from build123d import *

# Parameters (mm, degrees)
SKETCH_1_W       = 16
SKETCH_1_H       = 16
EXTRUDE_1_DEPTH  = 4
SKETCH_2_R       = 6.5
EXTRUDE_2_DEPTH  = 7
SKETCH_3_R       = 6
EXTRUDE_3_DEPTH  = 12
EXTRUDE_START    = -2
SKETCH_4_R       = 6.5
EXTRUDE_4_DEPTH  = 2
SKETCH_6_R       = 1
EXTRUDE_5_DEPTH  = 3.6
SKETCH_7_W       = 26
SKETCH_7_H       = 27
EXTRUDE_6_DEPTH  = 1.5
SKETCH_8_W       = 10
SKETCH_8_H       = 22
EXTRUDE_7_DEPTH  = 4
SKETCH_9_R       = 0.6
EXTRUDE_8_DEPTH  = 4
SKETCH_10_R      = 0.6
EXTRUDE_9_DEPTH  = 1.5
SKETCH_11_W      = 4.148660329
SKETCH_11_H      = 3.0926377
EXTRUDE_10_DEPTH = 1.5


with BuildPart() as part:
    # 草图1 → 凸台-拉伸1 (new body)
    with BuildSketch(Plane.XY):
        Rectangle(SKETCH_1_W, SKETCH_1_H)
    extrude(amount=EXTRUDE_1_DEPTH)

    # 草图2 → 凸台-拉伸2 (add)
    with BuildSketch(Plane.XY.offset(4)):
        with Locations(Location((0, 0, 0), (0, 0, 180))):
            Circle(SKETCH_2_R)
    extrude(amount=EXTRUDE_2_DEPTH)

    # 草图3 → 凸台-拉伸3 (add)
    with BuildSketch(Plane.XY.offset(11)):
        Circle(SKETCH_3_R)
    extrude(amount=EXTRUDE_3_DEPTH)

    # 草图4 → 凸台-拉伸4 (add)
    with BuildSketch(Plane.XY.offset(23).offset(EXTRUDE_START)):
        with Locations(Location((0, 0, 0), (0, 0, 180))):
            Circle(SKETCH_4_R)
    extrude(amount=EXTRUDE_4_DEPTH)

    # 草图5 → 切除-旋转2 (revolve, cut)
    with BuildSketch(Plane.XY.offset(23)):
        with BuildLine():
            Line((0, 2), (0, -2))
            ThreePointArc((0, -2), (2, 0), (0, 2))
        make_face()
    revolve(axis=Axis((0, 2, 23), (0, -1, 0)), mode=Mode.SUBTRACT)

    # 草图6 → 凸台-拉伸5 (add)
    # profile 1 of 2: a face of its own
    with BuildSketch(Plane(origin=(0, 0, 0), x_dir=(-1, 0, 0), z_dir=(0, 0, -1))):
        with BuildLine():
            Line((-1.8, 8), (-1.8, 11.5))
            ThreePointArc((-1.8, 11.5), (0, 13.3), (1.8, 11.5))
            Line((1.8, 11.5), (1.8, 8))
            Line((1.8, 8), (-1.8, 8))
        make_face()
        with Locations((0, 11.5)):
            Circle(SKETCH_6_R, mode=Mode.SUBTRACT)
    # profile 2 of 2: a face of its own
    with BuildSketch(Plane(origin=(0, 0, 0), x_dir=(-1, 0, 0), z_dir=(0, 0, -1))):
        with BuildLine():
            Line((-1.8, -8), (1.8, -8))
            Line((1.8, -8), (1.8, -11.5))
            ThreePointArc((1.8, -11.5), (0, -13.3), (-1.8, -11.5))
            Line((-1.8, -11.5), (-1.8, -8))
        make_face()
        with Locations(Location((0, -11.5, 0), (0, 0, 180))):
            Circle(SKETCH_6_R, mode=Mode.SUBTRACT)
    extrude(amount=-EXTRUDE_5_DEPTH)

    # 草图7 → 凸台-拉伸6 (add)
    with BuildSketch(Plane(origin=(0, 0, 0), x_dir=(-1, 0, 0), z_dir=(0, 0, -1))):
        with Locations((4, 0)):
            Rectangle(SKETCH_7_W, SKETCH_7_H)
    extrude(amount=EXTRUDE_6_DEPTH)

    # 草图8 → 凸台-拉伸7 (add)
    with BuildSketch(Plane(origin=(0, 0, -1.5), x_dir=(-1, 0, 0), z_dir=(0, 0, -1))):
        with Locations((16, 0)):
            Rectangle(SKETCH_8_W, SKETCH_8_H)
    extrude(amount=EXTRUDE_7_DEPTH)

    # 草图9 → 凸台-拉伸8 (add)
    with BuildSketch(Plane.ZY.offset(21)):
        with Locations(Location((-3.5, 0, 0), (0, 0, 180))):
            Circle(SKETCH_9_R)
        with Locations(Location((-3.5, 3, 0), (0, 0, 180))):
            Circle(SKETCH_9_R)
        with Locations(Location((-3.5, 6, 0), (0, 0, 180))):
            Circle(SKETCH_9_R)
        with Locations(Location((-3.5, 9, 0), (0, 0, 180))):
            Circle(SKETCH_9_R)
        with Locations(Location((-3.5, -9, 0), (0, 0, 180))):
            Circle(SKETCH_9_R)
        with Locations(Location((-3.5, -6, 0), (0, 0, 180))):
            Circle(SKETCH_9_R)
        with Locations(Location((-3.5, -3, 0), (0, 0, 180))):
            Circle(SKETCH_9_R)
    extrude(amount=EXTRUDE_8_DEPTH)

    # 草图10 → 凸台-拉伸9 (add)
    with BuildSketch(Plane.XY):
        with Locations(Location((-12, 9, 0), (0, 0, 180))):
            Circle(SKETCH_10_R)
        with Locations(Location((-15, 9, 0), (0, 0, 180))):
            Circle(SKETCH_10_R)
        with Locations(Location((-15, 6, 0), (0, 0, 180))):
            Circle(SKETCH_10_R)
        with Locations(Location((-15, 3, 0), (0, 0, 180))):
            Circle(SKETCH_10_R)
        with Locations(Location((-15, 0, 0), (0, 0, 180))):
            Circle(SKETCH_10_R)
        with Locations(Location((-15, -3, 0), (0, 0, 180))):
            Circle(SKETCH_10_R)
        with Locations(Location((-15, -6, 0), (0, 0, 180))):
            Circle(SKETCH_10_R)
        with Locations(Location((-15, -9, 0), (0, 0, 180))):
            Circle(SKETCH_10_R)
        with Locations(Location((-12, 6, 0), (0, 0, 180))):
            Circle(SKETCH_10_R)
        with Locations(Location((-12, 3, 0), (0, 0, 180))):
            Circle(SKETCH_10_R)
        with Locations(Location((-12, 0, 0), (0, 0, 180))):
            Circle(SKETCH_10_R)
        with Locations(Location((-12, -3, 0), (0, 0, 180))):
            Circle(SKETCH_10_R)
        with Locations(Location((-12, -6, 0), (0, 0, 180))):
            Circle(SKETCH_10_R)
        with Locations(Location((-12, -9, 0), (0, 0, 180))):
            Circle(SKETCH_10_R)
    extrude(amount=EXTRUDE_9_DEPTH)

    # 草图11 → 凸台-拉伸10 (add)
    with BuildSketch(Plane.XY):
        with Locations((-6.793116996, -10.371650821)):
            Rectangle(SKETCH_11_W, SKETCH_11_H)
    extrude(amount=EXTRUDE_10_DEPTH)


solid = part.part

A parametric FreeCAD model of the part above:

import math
import FreeCAD as App
import Part
import Sketcher

V = App.Vector


def add_polygon(sketch, points):
    """Adds a closed chain of lines whose ends are joined by coincident constraints."""
    first, n = sketch.GeometryCount, len(points)
    for a, b in zip(points, points[1:] + points[:1]):
        sketch.addGeometry(Part.LineSegment(App.Vector(*a, 0), App.Vector(*b, 0)), False)
    for i in range(n):
        sketch.addConstraint(Sketcher.Constraint("Coincident", first + i, 2, first + (i + 1) % n, 1))

doc = App.newDocument("Part")
body = doc.addObject("PartDesign::Body", "Body")

sketch1 = body.newObject("Sketcher::SketchObject", "Sketch")
sketch1.AttachmentSupport = (doc.getObject("XY_Plane"), [""])
sketch1.MapMode = "FlatFace"
add_polygon(sketch1, [(-8, 8), (-8, -8), (8, -8), (8, 8)])
sketch1.addConstraint([
    Sketcher.Constraint("Vertical", 0),
    Sketcher.Constraint("Horizontal", 1),
    Sketcher.Constraint("Vertical", 2),
    Sketcher.Constraint("Horizontal", 3),
    Sketcher.Constraint("Symmetric", 0, 2, 2, 2, -1, 1),
    Sketcher.Constraint("Equal", 3, 0),
    Sketcher.Constraint("DistanceX", 1, 1, 1, 2, 16.0),
])
pad1 = body.newObject("PartDesign::Pad", "Pad")
pad1.Profile = sketch1
pad1.Length = 4

sketch2 = body.newObject("Sketcher::SketchObject", "Sketch001")
sketch2.AttachmentSupport = (doc.getObject("XY_Plane"), [""])
sketch2.MapMode = "FlatFace"
sketch2.AttachmentOffset = App.Placement(V(0, 0, 4), App.Rotation())
sketch2.addGeometry(Part.Circle(V(0, 0, 0), V(0, 0, 1), 6.5), False)
sketch2.addConstraint([
    Sketcher.Constraint("Coincident", 0, 3, -1, 1),
    Sketcher.Constraint("Diameter", 0, 13.0),
])
pad2 = body.newObject("PartDesign::Pad", "Pad001")
pad2.Profile = sketch2
pad2.Length = 7

sketch3 = body.newObject("Sketcher::SketchObject", "Sketch002")
sketch3.AttachmentSupport = (doc.getObject("XY_Plane"), [""])
sketch3.MapMode = "FlatFace"
sketch3.AttachmentOffset = App.Placement(V(0, 0, 11), App.Rotation())
sketch3.addGeometry(Part.Circle(V(0, 0, 0), V(0, 0, 1), 6), False)
sketch3.addConstraint([
    Sketcher.Constraint("Coincident", 0, 3, -1, 1),
    Sketcher.Constraint("Diameter", 0, 12.0),
])
pad3 = body.newObject("PartDesign::Pad", "Pad002")
pad3.Profile = sketch3
pad3.Length = 12

sketch4 = body.newObject("Sketcher::SketchObject", "Sketch003")
sketch4.AttachmentSupport = (doc.getObject("XY_Plane"), [""])
sketch4.MapMode = "FlatFace"
sketch4.AttachmentOffset = App.Placement(V(0, 0, 21), App.Rotation())
sketch4.addGeometry(Part.Circle(V(0, 0, 0), V(0, 0, 1), 6.5), False)
sketch4.addConstraint([
    Sketcher.Constraint("Coincident", 0, 3, -1, 1),
    Sketcher.Constraint("Diameter", 0, 13.0),
])
pad4 = body.newObject("PartDesign::Pad", "Pad003")
pad4.Profile = sketch4
pad4.Length = 2

sketch5 = body.newObject("Sketcher::SketchObject", "Sketch004")
sketch5.AttachmentSupport = (doc.getObject("XY_Plane"), [""])
sketch5.MapMode = "FlatFace"
sketch5.AttachmentOffset = App.Placement(V(0, 0, 23), App.Rotation())
sketch5.addGeometry([
    Part.LineSegment(V(0, 2, 0), V(0, -2, 0)),
    Part.ArcOfCircle(Part.Circle(V(0, 0, 0), V(0, 0, 1), 2), math.radians(-90), math.radians(90)),
], False)
sketch5.addConstraint([
    Sketcher.Constraint("Coincident", 0, 1, 1, 2),
    Sketcher.Constraint("Coincident", 1, 1, 0, 2),
    Sketcher.Constraint("Vertical", 0),
    Sketcher.Constraint("Coincident", 1, 3, -1, 1),
    Sketcher.Constraint("PointOnObject", 0, 1, -2),
    Sketcher.Constraint("Radius", 1, 2.0),
])
groove = body.newObject("PartDesign::Groove", "Groove")
groove.Profile = sketch5
groove.ReferenceAxis = (sketch5, ["V_Axis"])
groove.Angle = 360

sketch6 = body.newObject("Sketcher::SketchObject", "Sketch005")
sketch6.AttachmentSupport = (doc.getObject("XY_Plane"), [""])
sketch6.MapMode = "FlatFace"
sketch6.addGeometry([
    Part.LineSegment(V(1.8, 11.5, 0), V(1.8, 8, 0)),
    Part.LineSegment(V(1.8, 8, 0), V(-1.8, 8, 0)),
    Part.LineSegment(V(-1.8, 8, 0), V(-1.8, 11.5, 0)),
    Part.ArcOfCircle(Part.Circle(V(0, 11.5, 0), V(0, 0, 1), 1.8), math.radians(0), math.radians(180)),
    Part.Circle(V(0, 11.5, 0), V(0, 0, 1), 1),
    Part.LineSegment(V(-1.8, -8, 0), V(1.8, -8, 0)),
    Part.LineSegment(V(1.8, -8, 0), V(1.8, -11.5, 0)),
    Part.ArcOfCircle(Part.Circle(V(0, -11.5, 0), V(0, 0, 1), 1.8), math.radians(180), math.radians(360)),
    Part.LineSegment(V(-1.8, -11.5, 0), V(-1.8, -8, 0)),
    Part.Circle(V(0, -11.5, 0), V(0, 0, 1), 1),
], False)
sketch6.addConstraint([
    Sketcher.Constraint("Coincident", 0, 2, 1, 1),
    Sketcher.Constraint("Coincident", 1, 2, 2, 1),
    Sketcher.Constraint("Tangent", 2, 2, 3, 2),
    Sketcher.Constraint("Tangent", 3, 1, 0, 1),
    Sketcher.Constraint("Coincident", 5, 2, 6, 1),
    Sketcher.Constraint("Tangent", 6, 2, 7, 2),
    Sketcher.Constraint("Tangent", 7, 1, 8, 1),
    Sketcher.Constraint("Coincident", 8, 2, 5, 1),
    Sketcher.Constraint("Vertical", 0),
    Sketcher.Constraint("Horizontal", 1),
    Sketcher.Constraint("Vertical", 2),
    Sketcher.Constraint("Horizontal", 5),
    Sketcher.Constraint("Vertical", 6),
    Sketcher.Constraint("Vertical", 8),
    Sketcher.Constraint("Coincident", 4, 3, 3, 3),
    Sketcher.Constraint("Coincident", 9, 3, 7, 3),
    Sketcher.Constraint("Equal", 3, 7),
    Sketcher.Constraint("Equal", 4, 9),
    Sketcher.Constraint("Symmetric", 3, 3, 7, 3, -1, 1),
    Sketcher.Constraint("Symmetric", 0, 2, 5, 2, -1),
    Sketcher.Constraint("Diameter", 4, 2.0),
    Sketcher.Constraint("Radius", 3, 1.8),
    Sketcher.Constraint("DistanceY", 0, 2, 0, 1, 3.5),
    Sketcher.Constraint("DistanceY", -1, 1, 0, 2, 8.0),
])
pad5 = body.newObject("PartDesign::Pad", "Pad004")
pad5.Profile = sketch6
pad5.Length = 3.6

sketch7 = body.newObject("Sketcher::SketchObject", "Sketch006")
sketch7.AttachmentSupport = (doc.getObject("XY_Plane"), [""])
sketch7.MapMode = "FlatFace"
add_polygon(sketch7, [(9, 13.5), (9, -13.5), (-17, -13.5), (-17, 13.5)])
sketch7.addConstraint([
    Sketcher.Constraint("Vertical", 0),
    Sketcher.Constraint("Horizontal", 1),
    Sketcher.Constraint("Vertical", 2),
    Sketcher.Constraint("Horizontal", 3),
    Sketcher.Constraint("DistanceX", 1, 2, 1, 1, 26.0),
    Sketcher.Constraint("DistanceY", 0, 2, 0, 1, 27.0),
    Sketcher.Constraint("DistanceX", -1, 1, 0, 2, 9.0),
    Sketcher.Constraint("DistanceY", 0, 2, -1, 1, 13.5),
])
pad6 = body.newObject("PartDesign::Pad", "Pad005")
pad6.Profile = sketch7
pad6.Length = 1.5
pad6.Reversed = True

sketch8 = body.newObject("Sketcher::SketchObject", "Sketch007")
sketch8.AttachmentSupport = (doc.getObject("XY_Plane"), [""])
sketch8.MapMode = "FlatFace"
sketch8.AttachmentOffset = App.Placement(V(0, 0, -1.5), App.Rotation())
add_polygon(sketch8, [(-11, 11), (-11, -11), (-21, -11), (-21, 11)])
sketch8.addConstraint([
    Sketcher.Constraint("Vertical", 0),
    Sketcher.Constraint("Horizontal", 1),
    Sketcher.Constraint("Vertical", 2),
    Sketcher.Constraint("Horizontal", 3),
    Sketcher.Constraint("DistanceX", 1, 2, 1, 1, 10.0),
    Sketcher.Constraint("DistanceY", 0, 2, 0, 1, 22.0),
    Sketcher.Constraint("DistanceX", 0, 2, -1, 1, 11.0),
    Sketcher.Constraint("DistanceY", 0, 2, -1, 1, 11.0),
])
pad7 = body.newObject("PartDesign::Pad", "Pad006")
pad7.Profile = sketch8
pad7.Length = 4
pad7.Reversed = True

sketch9 = body.newObject("Sketcher::SketchObject", "Sketch008")
sketch9.AttachmentSupport = (doc.getObject("YZ_Plane"), [""])
sketch9.MapMode = "FlatFace"
sketch9.AttachmentOffset = App.Placement(V(0, 0, -21), App.Rotation())
sketch9.addGeometry([
    Part.Circle(V(0, -3.5, 0), V(0, 0, 1), 0.6),
    Part.Circle(V(3, -3.5, 0), V(0, 0, 1), 0.6),
    Part.Circle(V(6, -3.5, 0), V(0, 0, 1), 0.6),
    Part.Circle(V(9, -3.5, 0), V(0, 0, 1), 0.6),
    Part.Circle(V(-9, -3.5, 0), V(0, 0, 1), 0.6),
    Part.Circle(V(-6, -3.5, 0), V(0, 0, 1), 0.6),
    Part.Circle(V(-3, -3.5, 0), V(0, 0, 1), 0.6),
], False)
sketch9.addConstraint([
    Sketcher.Constraint("Equal", 0, 1),
    Sketcher.Constraint("Equal", 1, 2),
    Sketcher.Constraint("Equal", 2, 3),
    Sketcher.Constraint("Equal", 3, 4),
    Sketcher.Constraint("Equal", 4, 5),
    Sketcher.Constraint("Equal", 5, 6),
    Sketcher.Constraint("Symmetric", 3, 3, 4, 3, -2),
    Sketcher.Constraint("Symmetric", 2, 3, 5, 3, -2),
    Sketcher.Constraint("Symmetric", 1, 3, 6, 3, -2),
    Sketcher.Constraint("PointOnObject", 0, 3, -2),
    Sketcher.Constraint("Horizontal", 0, 3, 1, 3),
    Sketcher.Constraint("Horizontal", 1, 3, 2, 3),
    Sketcher.Constraint("Horizontal", 2, 3, 3, 3),
    Sketcher.Constraint("Diameter", 0, 1.2),
    Sketcher.Constraint("DistanceX", -1, 1, 1, 3, 3.0),
    Sketcher.Constraint("DistanceX", -1, 1, 2, 3, 6.0),
    Sketcher.Constraint("DistanceX", -1, 1, 3, 3, 9.0),
    Sketcher.Constraint("DistanceY", 0, 3, -1, 1, 3.5),
])
pad8 = body.newObject("PartDesign::Pad", "Pad007")
pad8.Profile = sketch9
pad8.Length = 4
pad8.Reversed = True

sketch10 = body.newObject("Sketcher::SketchObject", "Sketch009")
sketch10.AttachmentSupport = (doc.getObject("XY_Plane"), [""])
sketch10.MapMode = "FlatFace"
sketch10.addGeometry([
    Part.Circle(V(-12, 9, 0), V(0, 0, 1), 0.6),
    Part.Circle(V(-15, 9, 0), V(0, 0, 1), 0.6),
    Part.Circle(V(-15, 6, 0), V(0, 0, 1), 0.6),
    Part.Circle(V(-15, 3, 0), V(0, 0, 1), 0.6),
    Part.Circle(V(-15, 0, 0), V(0, 0, 1), 0.6),
    Part.Circle(V(-15, -3, 0), V(0, 0, 1), 0.6),
    Part.Circle(V(-15, -6, 0), V(0, 0, 1), 0.6),
    Part.Circle(V(-15, -9, 0), V(0, 0, 1), 0.6),
    Part.Circle(V(-12, 6, 0), V(0, 0, 1), 0.6),
    Part.Circle(V(-12, 3, 0), V(0, 0, 1), 0.6),
    Part.Circle(V(-12, 0, 0), V(0, 0, 1), 0.6),
    Part.Circle(V(-12, -3, 0), V(0, 0, 1), 0.6),
    Part.Circle(V(-12, -6, 0), V(0, 0, 1), 0.6),
    Part.Circle(V(-12, -9, 0), V(0, 0, 1), 0.6),
], False)
sketch10.addConstraint([
    Sketcher.Constraint("Equal", 0, 1),
    Sketcher.Constraint("Equal", 1, 2),
    Sketcher.Constraint("Equal", 2, 3),
    Sketcher.Constraint("Equal", 3, 4),
    Sketcher.Constraint("Equal", 4, 5),
    Sketcher.Constraint("Equal", 5, 6),
    Sketcher.Constraint("Equal", 6, 7),
    Sketcher.Constraint("Equal", 7, 8),
    Sketcher.Constraint("Equal", 8, 9),
    Sketcher.Constraint("Equal", 9, 10),
    Sketcher.Constraint("Equal", 10, 11),
    Sketcher.Constraint("Equal", 11, 12),
    Sketcher.Constraint("Equal", 12, 13),
    Sketcher.Constraint("Symmetric", 3, 3, 5, 3, -1),
    Sketcher.Constraint("Symmetric", 2, 3, 6, 3, -1),
    Sketcher.Constraint("Symmetric", 1, 3, 7, 3, -1),
    Sketcher.Constraint("Symmetric", 9, 3, 11, 3, -1),
    Sketcher.Constraint("Symmetric", 8, 3, 12, 3, -1),
    Sketcher.Constraint("Symmetric", 0, 3, 13, 3, -1),
    Sketcher.Constraint("PointOnObject", 4, 3, -1),
    Sketcher.Constraint("PointOnObject", 10, 3, -1),
    Sketcher.Constraint("Horizontal", 0, 3, 1, 3),
    Sketcher.Constraint("Horizontal", 2, 3, 8, 3),
    Sketcher.Constraint("Horizontal", 3, 3, 9, 3),
    Sketcher.Constraint("Vertical", 1, 3, 2, 3),
    Sketcher.Constraint("Vertical", 2, 3, 3, 3),
    Sketcher.Constraint("Vertical", 3, 3, 4, 3),
    Sketcher.Constraint("Vertical", 0, 3, 8, 3),
    Sketcher.Constraint("Vertical", 8, 3, 9, 3),
    Sketcher.Constraint("Vertical", 9, 3, 10, 3),
    Sketcher.Constraint("Diameter", 0, 1.2),
    Sketcher.Constraint("DistanceX", 0, 3, -1, 1, 12.0),
    Sketcher.Constraint("DistanceY", -1, 1, 0, 3, 9.0),
    Sketcher.Constraint("DistanceX", 1, 3, -1, 1, 15.0),
    Sketcher.Constraint("DistanceY", -1, 1, 2, 3, 6.0),
    Sketcher.Constraint("DistanceY", -1, 1, 3, 3, 3.0),
])
pad9 = body.newObject("PartDesign::Pad", "Pad008")
pad9.Profile = sketch10
pad9.Length = 1.5

sketch11 = body.newObject("Sketcher::SketchObject", "Sketch010")
sketch11.AttachmentSupport = (doc.getObject("XY_Plane"), [""])
sketch11.MapMode = "FlatFace"
add_polygon(sketch11, [(-8.867447, -8.825332), (-8.867447, -11.91797), (-4.718787, -11.91797), (-4.718787, -8.825332)])
sketch11.addConstraint([
    Sketcher.Constraint("Vertical", 0),
    Sketcher.Constraint("Horizontal", 1),
    Sketcher.Constraint("Vertical", 2),
    Sketcher.Constraint("Horizontal", 3),
    Sketcher.Constraint("DistanceX", 1, 1, 1, 2, 4.14866),
    Sketcher.Constraint("DistanceY", 0, 2, 0, 1, 3.092638),
    Sketcher.Constraint("DistanceY", 0, 2, -1, 1, 11.91797),
    Sketcher.Constraint("DistanceX", 0, 2, -1, 1, 8.867447),
])
pad10 = body.newObject("PartDesign::Pad", "Pad009")
pad10.Profile = sketch11
pad10.Length = 1.5

doc.recompute()
